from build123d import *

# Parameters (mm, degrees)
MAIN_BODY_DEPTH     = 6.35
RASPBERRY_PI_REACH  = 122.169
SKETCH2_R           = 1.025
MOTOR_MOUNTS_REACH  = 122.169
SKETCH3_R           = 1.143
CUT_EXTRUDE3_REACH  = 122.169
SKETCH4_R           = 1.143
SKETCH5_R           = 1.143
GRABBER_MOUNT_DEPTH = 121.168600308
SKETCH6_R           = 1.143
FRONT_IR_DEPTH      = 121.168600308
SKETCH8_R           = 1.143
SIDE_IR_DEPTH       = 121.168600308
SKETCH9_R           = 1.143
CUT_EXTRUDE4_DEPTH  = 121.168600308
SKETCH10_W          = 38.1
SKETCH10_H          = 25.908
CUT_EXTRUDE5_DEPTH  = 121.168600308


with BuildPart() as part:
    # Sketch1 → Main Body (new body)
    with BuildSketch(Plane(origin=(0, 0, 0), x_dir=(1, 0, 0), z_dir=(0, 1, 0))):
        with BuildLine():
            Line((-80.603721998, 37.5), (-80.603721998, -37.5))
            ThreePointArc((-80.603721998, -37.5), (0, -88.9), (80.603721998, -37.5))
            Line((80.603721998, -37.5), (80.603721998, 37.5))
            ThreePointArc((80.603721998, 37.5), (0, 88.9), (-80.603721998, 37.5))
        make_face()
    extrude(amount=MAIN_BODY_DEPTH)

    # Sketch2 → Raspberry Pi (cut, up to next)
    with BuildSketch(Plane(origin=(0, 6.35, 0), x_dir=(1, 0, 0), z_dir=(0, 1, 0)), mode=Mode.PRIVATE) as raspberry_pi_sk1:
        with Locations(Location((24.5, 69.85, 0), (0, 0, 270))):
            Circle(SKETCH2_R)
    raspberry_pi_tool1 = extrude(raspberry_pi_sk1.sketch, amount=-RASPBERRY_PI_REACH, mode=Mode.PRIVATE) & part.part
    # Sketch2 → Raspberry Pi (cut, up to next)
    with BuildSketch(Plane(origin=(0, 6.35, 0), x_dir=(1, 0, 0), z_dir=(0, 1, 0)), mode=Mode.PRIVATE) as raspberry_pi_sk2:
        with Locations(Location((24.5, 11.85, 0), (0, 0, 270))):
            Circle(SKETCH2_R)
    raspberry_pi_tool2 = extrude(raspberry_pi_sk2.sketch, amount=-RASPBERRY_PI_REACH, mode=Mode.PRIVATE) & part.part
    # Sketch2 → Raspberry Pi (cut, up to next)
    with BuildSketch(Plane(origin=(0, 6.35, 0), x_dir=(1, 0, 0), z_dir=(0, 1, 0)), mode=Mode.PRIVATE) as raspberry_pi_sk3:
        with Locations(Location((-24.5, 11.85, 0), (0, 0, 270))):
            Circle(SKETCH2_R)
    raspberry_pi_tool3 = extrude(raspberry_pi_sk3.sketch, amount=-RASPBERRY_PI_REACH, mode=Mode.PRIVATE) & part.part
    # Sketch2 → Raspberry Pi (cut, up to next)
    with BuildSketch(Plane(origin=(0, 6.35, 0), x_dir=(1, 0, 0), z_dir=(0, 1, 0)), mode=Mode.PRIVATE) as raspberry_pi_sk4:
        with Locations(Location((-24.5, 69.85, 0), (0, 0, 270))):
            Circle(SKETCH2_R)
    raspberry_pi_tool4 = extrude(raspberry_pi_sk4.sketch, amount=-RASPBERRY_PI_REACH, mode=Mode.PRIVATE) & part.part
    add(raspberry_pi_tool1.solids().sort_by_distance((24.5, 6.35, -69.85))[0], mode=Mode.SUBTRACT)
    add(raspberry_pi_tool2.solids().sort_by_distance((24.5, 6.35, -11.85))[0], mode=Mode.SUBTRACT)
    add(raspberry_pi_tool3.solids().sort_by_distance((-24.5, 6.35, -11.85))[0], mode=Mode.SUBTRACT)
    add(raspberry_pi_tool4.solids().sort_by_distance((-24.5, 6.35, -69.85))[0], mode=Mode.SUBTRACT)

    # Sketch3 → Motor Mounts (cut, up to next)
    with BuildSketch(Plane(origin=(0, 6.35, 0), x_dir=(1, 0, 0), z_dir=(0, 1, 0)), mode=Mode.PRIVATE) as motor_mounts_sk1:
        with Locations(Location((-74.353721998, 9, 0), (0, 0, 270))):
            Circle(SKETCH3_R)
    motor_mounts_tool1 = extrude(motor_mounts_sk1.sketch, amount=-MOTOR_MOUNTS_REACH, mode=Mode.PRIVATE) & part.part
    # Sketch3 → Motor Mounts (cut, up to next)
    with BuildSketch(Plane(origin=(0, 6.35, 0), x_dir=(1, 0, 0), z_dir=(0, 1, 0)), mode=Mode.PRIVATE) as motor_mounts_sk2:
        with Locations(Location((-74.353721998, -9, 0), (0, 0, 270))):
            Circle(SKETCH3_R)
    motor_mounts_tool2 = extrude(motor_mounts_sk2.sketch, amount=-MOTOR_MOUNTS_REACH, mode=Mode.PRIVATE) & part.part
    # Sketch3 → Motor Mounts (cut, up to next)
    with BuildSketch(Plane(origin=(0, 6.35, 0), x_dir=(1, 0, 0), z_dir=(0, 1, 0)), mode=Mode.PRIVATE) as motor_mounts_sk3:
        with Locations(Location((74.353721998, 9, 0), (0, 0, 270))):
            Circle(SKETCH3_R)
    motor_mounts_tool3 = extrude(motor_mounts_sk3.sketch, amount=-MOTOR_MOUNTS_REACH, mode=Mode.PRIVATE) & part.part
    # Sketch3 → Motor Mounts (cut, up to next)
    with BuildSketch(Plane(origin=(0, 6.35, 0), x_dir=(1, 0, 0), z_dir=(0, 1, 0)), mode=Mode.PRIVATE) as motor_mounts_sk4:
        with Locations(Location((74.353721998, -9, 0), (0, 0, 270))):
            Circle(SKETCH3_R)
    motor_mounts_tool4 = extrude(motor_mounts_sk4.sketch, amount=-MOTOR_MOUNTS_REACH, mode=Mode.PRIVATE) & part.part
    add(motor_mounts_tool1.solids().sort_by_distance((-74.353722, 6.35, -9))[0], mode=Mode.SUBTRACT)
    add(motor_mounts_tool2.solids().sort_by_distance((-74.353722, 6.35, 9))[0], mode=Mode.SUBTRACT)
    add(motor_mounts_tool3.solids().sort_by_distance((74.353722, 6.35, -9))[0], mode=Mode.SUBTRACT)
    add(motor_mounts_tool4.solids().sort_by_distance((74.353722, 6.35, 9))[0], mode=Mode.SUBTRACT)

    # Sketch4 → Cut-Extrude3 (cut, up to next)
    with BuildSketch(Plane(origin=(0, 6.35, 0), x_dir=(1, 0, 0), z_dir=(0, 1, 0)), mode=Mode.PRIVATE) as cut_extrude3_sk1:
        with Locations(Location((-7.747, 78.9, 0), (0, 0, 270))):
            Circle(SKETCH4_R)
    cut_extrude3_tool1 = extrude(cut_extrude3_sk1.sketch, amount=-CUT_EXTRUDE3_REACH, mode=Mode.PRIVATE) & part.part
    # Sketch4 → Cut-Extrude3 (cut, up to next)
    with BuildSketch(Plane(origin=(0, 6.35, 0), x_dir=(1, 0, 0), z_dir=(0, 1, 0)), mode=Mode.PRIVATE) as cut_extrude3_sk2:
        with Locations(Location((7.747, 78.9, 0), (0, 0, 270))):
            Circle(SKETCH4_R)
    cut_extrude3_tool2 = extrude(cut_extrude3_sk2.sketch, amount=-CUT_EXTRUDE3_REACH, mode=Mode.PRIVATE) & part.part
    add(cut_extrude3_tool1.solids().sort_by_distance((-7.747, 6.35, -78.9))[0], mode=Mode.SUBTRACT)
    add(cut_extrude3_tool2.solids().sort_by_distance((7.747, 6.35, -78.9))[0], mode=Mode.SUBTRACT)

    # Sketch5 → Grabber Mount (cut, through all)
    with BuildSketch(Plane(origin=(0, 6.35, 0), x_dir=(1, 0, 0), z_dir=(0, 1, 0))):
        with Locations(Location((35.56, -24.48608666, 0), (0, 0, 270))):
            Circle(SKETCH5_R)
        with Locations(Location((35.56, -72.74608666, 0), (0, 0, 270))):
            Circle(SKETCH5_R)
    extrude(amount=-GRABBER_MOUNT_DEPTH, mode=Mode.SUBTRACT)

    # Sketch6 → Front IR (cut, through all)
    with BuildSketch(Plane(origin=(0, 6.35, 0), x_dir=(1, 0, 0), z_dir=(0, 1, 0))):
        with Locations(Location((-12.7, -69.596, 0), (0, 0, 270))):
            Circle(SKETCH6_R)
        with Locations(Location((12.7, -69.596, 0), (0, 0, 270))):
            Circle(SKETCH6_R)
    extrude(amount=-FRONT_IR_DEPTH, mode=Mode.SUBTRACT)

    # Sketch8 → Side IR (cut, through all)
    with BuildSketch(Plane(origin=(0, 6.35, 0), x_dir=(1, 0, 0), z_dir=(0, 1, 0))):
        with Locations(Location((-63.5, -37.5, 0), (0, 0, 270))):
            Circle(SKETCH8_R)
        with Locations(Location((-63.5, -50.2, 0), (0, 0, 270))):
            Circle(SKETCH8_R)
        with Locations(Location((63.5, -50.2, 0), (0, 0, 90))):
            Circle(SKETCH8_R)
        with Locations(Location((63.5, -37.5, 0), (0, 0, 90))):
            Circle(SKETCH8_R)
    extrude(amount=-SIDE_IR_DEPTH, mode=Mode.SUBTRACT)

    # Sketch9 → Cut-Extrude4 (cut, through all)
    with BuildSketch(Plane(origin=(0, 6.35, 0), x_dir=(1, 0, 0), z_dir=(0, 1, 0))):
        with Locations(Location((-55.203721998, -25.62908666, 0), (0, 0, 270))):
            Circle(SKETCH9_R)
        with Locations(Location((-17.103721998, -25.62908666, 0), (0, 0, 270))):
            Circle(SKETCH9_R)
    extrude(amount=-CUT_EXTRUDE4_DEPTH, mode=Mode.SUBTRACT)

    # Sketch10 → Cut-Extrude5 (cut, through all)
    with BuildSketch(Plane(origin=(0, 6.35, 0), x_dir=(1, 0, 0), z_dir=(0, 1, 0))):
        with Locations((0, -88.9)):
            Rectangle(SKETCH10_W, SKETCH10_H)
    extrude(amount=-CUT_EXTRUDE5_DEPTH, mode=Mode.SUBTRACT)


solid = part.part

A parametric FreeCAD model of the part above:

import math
import FreeCAD as App
import Part
import Sketcher
from FreeCAD import Vector
Q = App.Units.Quantity

doc = App.newDocument("Part")
body = doc.addObject("PartDesign::Body", "Body")

sketch1 = doc.addObject("Sketcher::SketchObject", "Sketch")
body.addObject(sketch1)
sketch1.AttachmentSupport = (doc.XZ_Plane, [""])
sketch1.MapMode = "FlatFace"
sketch1.addGeometry([
    Part.LineSegment(Vector(-81, -38, 0), Vector(-81, 38, 0)),
    Part.ArcOfCircle(Part.Circle(Vector(0, 0, 0), Vector(0, 0, 1), 89), math.radians(25), math.radians(155)),
    Part.LineSegment(Vector(81, 38, 0), Vector(81, -38, 0)),
    Part.ArcOfCircle(Part.Circle(Vector(0, 0, 0), Vector(0, 0, 1), 89), math.radians(-155), math.radians(-25)),
], False)
sketch1.addConstraint([
    Sketcher.Constraint("Coincident", 0, 2, 1, 2),
    Sketcher.Constraint("Coincident", 1, 1, 2, 1),
    Sketcher.Constraint("Coincident", 2, 2, 3, 2),
    Sketcher.Constraint("Coincident", 3, 1, 0, 1),
    Sketcher.Constraint("Vertical", 0),
    Sketcher.Constraint("Vertical", 2),
    Sketcher.Constraint("Coincident", 1, 3, -1, 1),
    Sketcher.Constraint("Coincident", 3, 3, -1, 1),
    Sketcher.Constraint("Equal", 1, 3),
    Sketcher.Constraint("Horizontal", 0, 2, 1, 1),
    Sketcher.Constraint("Radius", 1, Q("3.5 in")),
    Sketcher.Constraint("DistanceY", 0, 1, 0, 2, 75.0),
])
pad1 = doc.addObject("PartDesign::Pad", "Pad")
body.addObject(pad1)
pad1.Profile = sketch1
pad1.Length = Q("0.25 in")
pad1.Reversed = True

sketch2 = doc.addObject("Sketcher::SketchObject", "Sketch001")
body.addObject(sketch2)
sketch2.AttachmentSupport = (doc.XZ_Plane, [""])
sketch2.MapMode = "FlatFace"
sketch2.AttachmentOffset = App.Placement(Vector(0, 0, -0.25 * 25.4), App.Rotation())
sketch2.addGeometry(Part.Circle(Vector(24.5, -69.8, 0), Vector(0, 0, 1), 1), False)
sketch2.addConstraint([
    Sketcher.Constraint("Diameter", 0, 2.05),
    Sketcher.Constraint("DistanceY", 0, 3, -1, 1, Q("2.75 in")),
    Sketcher.Constraint("DistanceX", -1, 1, 0, 3, 24.5),
])
pocket1 = doc.addObject("PartDesign::Pocket", "Pocket")
body.addObject(pocket1)
pocket1.Profile = sketch2
pocket1.Type = "UpToFirst"
pocket1.Reversed = True

sketch3 = doc.addObject("Sketcher::SketchObject", "Sketch002")
body.addObject(sketch3)
sketch3.AttachmentSupport = (doc.XZ_Plane, [""])
sketch3.MapMode = "FlatFace"
sketch3.AttachmentOffset = App.Placement(Vector(0, 0, -0.25 * 25.4), App.Rotation())
sketch3.addGeometry(Part.Circle(Vector(24.5, -11.8, 0), Vector(0, 0, 1), 1), False)
sketch3.addConstraint([
    Sketcher.Constraint("Diameter", 0, 2.05),
    Sketcher.Constraint("DistanceX", -1, 1, 0, 3, 24.5),
    Sketcher.Constraint("DistanceY", 0, 3, -1, 1, 11.85),
])
pocket2 = doc.addObject("PartDesign::Pocket", "Pocket001")
body.addObject(pocket2)
pocket2.Profile = sketch3
pocket2.Type = "UpToFirst"
pocket2.Reversed = True

sketch4 = doc.addObject("Sketcher::SketchObject", "Sketch003")
body.addObject(sketch4)
sketch4.AttachmentSupport = (doc.XZ_Plane, [""])
sketch4.MapMode = "FlatFace"
sketch4.AttachmentOffset = App.Placement(Vector(0, 0, -0.25 * 25.4), App.Rotation())
sketch4.addGeometry(Part.Circle(Vector(-24.5, -11.8, 0), Vector(0, 0, 1), 1), False)
sketch4.addConstraint([
    Sketcher.Constraint("Diameter", 0, 2.05),
    Sketcher.Constraint("DistanceX", 0, 3, -1, 1, 24.5),
    Sketcher.Constraint("DistanceY", 0, 3, -1, 1, 11.85),
])
pocket3 = doc.addObject("PartDesign::Pocket", "Pocket002")
body.addObject(pocket3)
pocket3.Profile = sketch4
pocket3.Type = "UpToFirst"
pocket3.Reversed = True

sketch5 = doc.addObject("Sketcher::SketchObject", "Sketch004")
body.addObject(sketch5)
sketch5.AttachmentSupport = (doc.XZ_Plane, [""])
sketch5.MapMode = "FlatFace"
sketch5.AttachmentOffset = App.Placement(Vector(0, 0, -0.25 * 25.4), App.Rotation())
sketch5.addGeometry(Part.Circle(Vector(-24.5, -69.8, 0), Vector(0, 0, 1), 1), False)
sketch5.addConstraint([
    Sketcher.Constraint("Diameter", 0, 2.05),
    Sketcher.Constraint("DistanceY", 0, 3, -1, 1, Q("2.75 in")),
    Sketcher.Constraint("DistanceX", 0, 3, -1, 1, 24.5),
])
pocket4 = doc.addObject("PartDesign::Pocket", "Pocket003")
body.addObject(pocket4)
pocket4.Profile = sketch5
pocket4.Type = "UpToFirst"
pocket4.Reversed = True

sketch6 = doc.addObject("Sketcher::SketchObject", "Sketch005")
body.addObject(sketch6)
sketch6.AttachmentSupport = (doc.XZ_Plane, [""])
sketch6.MapMode = "FlatFace"
sketch6.AttachmentOffset = App.Placement(Vector(0, 0, -0.25 * 25.4), App.Rotation())
sketch6.addGeometry(Part.Circle(Vector(-74.4, -9, 0), Vector(0, 0, 1), 1.1), False)
sketch6.addConstraint([
    Sketcher.Constraint("Diameter", 0, Q("0.09 in")),
    Sketcher.Constraint("DistanceY", 0, 3, -1, 1, 9.0),
    Sketcher.Constraint("DistanceX", 0, 3, -1, 1, 74.353722),
])
pocket5 = doc.addObject("PartDesign::Pocket", "Pocket004")
body.addObject(pocket5)
pocket5.Profile = sketch6
pocket5.Type = "UpToFirst"
pocket5.Reversed = True

sketch7 = doc.addObject("Sketcher::SketchObject", "Sketch006")
body.addObject(sketch7)
sketch7.AttachmentSupport = (doc.XZ_Plane, [""])
sketch7.MapMode = "FlatFace"
sketch7.AttachmentOffset = App.Placement(Vector(0, 0, -0.25 * 25.4), App.Rotation())
sketch7.addGeometry(Part.Circle(Vector(-74.4, 9, 0), Vector(0, 0, 1), 1.1), False)
sketch7.addConstraint([
    Sketcher.Constraint("Diameter", 0, Q("0.09 in")),
    Sketcher.Constraint("DistanceY", -1, 1, 0, 3, 9.0),
    Sketcher.Constraint("DistanceX", 0, 3, -1, 1, 74.353722),
])
pocket6 = doc.addObject("PartDesign::Pocket", "Pocket005")
body.addObject(pocket6)
pocket6.Profile = sketch7
pocket6.Type = "UpToFirst"
pocket6.Reversed = True

sketch8 = doc.addObject("Sketcher::SketchObject", "Sketch007")
body.addObject(sketch8)
sketch8.AttachmentSupport = (doc.XZ_Plane, [""])
sketch8.MapMode = "FlatFace"
sketch8.AttachmentOffset = App.Placement(Vector(0, 0, -0.25 * 25.4), App.Rotation())
sketch8.addGeometry(Part.Circle(Vector(74.4, -9, 0), Vector(0, 0, 1), 1.1), False)
sketch8.addConstraint([
    Sketcher.Constraint("Diameter", 0, Q("0.09 in")),
    Sketcher.Constraint("DistanceY", 0, 3, -1, 1, 9.0),
    Sketcher.Constraint("DistanceX", -1, 1, 0, 3, 74.353722),
])
pocket7 = doc.addObject("PartDesign::Pocket", "Pocket006")
body.addObject(pocket7)
pocket7.Profile = sketch8
pocket7.Type = "UpToFirst"
pocket7.Reversed = True

sketch9 = doc.addObject("Sketcher::SketchObject", "Sketch008")
body.addObject(sketch9)
sketch9.AttachmentSupport = (doc.XZ_Plane, [""])
sketch9.MapMode = "FlatFace"
sketch9.AttachmentOffset = App.Placement(Vector(0, 0, -0.25 * 25.4), App.Rotation())
sketch9.addGeometry(Part.Circle(Vector(74.4, 9, 0), Vector(0, 0, 1), 1.1), False)
sketch9.addConstraint([
    Sketcher.Constraint("Diameter", 0, Q("0.09 in")),
    Sketcher.Constraint("DistanceY", -1, 1, 0, 3, 9.0),
    Sketcher.Constraint("DistanceX", -1, 1, 0, 3, 74.353722),
])
pocket8 = doc.addObject("PartDesign::Pocket", "Pocket007")
body.addObject(pocket8)
pocket8.Profile = sketch9
pocket8.Type = "UpToFirst"
pocket8.Reversed = True

sketch10 = doc.addObject("Sketcher::SketchObject", "Sketch009")
body.addObject(sketch10)
sketch10.AttachmentSupport = (doc.XZ_Plane, [""])
sketch10.MapMode = "FlatFace"
sketch10.AttachmentOffset = App.Placement(Vector(0, 0, -0.25 * 25.4), App.Rotation())
sketch10.addGeometry(Part.Circle(Vector(-7.7, -78.9, 0), Vector(0, 0, 1), 1.1), False)
sketch10.addConstraint([
    Sketcher.Constraint("Diameter", 0, Q("0.09 in")),
    Sketcher.Constraint("DistanceX", 0, 3, -1, 1, Q("0.305 in")),
    Sketcher.Constraint("DistanceY", 0, 3, -1, 1, 78.9),
])
pocket9 = doc.addObject("PartDesign::Pocket", "Pocket008")
body.addObject(pocket9)
pocket9.Profile = sketch10
pocket9.Type = "UpToFirst"
pocket9.Reversed = True

sketch11 = doc.addObject("Sketcher::SketchObject", "Sketch010")
body.addObject(sketch11)
sketch11.AttachmentSupport = (doc.XZ_Plane, [""])
sketch11.MapMode = "FlatFace"
sketch11.AttachmentOffset = App.Placement(Vector(0, 0, -0.25 * 25.4), App.Rotation())
sketch11.addGeometry(Part.Circle(Vector(7.7, -78.9, 0), Vector(0, 0, 1), 1.1), False)
sketch11.addConstraint([
    Sketcher.Constraint("Diameter", 0, Q("0.09 in")),
    Sketcher.Constraint("DistanceX", -1, 1, 0, 3, Q("0.305 in")),
    Sketcher.Constraint("DistanceY", 0, 3, -1, 1, 78.9),
])
pocket10 = doc.addObject("PartDesign::Pocket", "Pocket009")
body.addObject(pocket10)
pocket10.Profile = sketch11
pocket10.Type = "UpToFirst"
pocket10.Reversed = True

sketch12 = doc.addObject("Sketcher::SketchObject", "Sketch011")
body.addObject(sketch12)
sketch12.AttachmentSupport = (doc.XZ_Plane, [""])
sketch12.MapMode = "FlatFace"
sketch12.AttachmentOffset = App.Placement(Vector(0, 0, -0.25 * 25.4), App.Rotation())
sketch12.addGeometry([
    Part.Circle(Vector(35.6, 24.5, 0), Vector(0, 0, 1), 1.1),
    Part.Circle(Vector(35.6, 72.7, 0), Vector(0, 0, 1), 1.1),
], False)
sketch12.addConstraint([
    Sketcher.Constraint("Equal", 0, 1),
    Sketcher.Constraint("Vertical", 0, 3, 1, 3),
    Sketcher.Constraint("Diameter", 0, Q("0.09 in")),
    Sketcher.Constraint("DistanceX", -1, 1, 0, 3, Q("1.4 in")),
    Sketcher.Constraint("DistanceY", 0, 3, 1, 3, Q("1.9 in")),
    Sketcher.Constraint("DistanceY", -1, 1, 0, 3, 24.486087),
])
pocket11 = doc.addObject("PartDesign::Pocket", "Pocket010")
body.addObject(pocket11)
pocket11.Profile = sketch12
pocket11.Type = "ThroughAll"
pocket11.Reversed = True

sketch13 = doc.addObject("Sketcher::SketchObject", "Sketch012")
body.addObject(sketch13)
sketch13.AttachmentSupport = (doc.XZ_Plane, [""])
sketch13.MapMode = "FlatFace"
sketch13.AttachmentOffset = App.Placement(Vector(0, 0, -0.25 * 25.4), App.Rotation())
sketch13.addGeometry([
    Part.Circle(Vector(-12.7, 69.6, 0), Vector(0, 0, 1), 1.1),
    Part.Circle(Vector(12.7, 69.6, 0), Vector(0, 0, 1), 1.1),
], False)
sketch13.addConstraint([
    Sketcher.Constraint("Equal", 0, 1),
    Sketcher.Constraint("Symmetric", 0, 3, 1, 3, -2),
    Sketcher.Constraint("Diameter", 0, Q("0.09 in")),
    Sketcher.Constraint("DistanceX", 0, 3, 1, 3, Q("1 in")),
    Sketcher.Constraint("DistanceY", -1, 1, 0, 3, Q("2.74 in")),
])
pocket12 = doc.addObject("PartDesign::Pocket", "Pocket011")
body.addObject(pocket12)
pocket12.Profile = sketch13
pocket12.Type = "ThroughAll"
pocket12.Reversed = True

sketch14 = doc.addObject("Sketcher::SketchObject", "Sketch013")
body.addObject(sketch14)
sketch14.AttachmentSupport = (doc.XZ_Plane, [""])
sketch14.MapMode = "FlatFace"
sketch14.AttachmentOffset = App.Placement(Vector(0, 0, -0.25 * 25.4), App.Rotation())
sketch14.addGeometry([
    Part.Circle(Vector(-63.5, 37.5, 0), Vector(0, 0, 1), 1.1),
    Part.Circle(Vector(-63.5, 50.2, 0), Vector(0, 0, 1), 1.1),
    Part.Circle(Vector(63.5, 50.2, 0), Vector(0, 0, 1), 1.1),
    Part.Circle(Vector(63.5, 37.5, 0), Vector(0, 0, 1), 1.1),
], False)
sketch14.addConstraint([
    Sketcher.Constraint("Equal", 0, 1),
    Sketcher.Constraint("Equal", 1, 2),
    Sketcher.Constraint("Equal", 2, 3),
    Sketcher.Constraint("Symmetric", 1, 3, 2, 3, -2),
    Sketcher.Constraint("Symmetric", 0, 3, 3, 3, -2),
    Sketcher.Constraint("Vertical", 0, 3, 1, 3),
    Sketcher.Constraint("Diameter", 0, Q("0.09 in")),
    Sketcher.Constraint("DistanceX", 1, 3, 2, 3, Q("5 in")),
    Sketcher.Constraint("DistanceY", 0, 3, 1, 3, Q("0.5 in")),
    Sketcher.Constraint("DistanceY", -1, 1, 0, 3, 37.5),
])
pocket13 = doc.addObject("PartDesign::Pocket", "Pocket012")
body.addObject(pocket13)
pocket13.Profile = sketch14
pocket13.Type = "ThroughAll"
pocket13.Reversed = True

sketch15 = doc.addObject("Sketcher::SketchObject", "Sketch014")
body.addObject(sketch15)
sketch15.AttachmentSupport = (doc.XZ_Plane, [""])
sketch15.MapMode = "FlatFace"
sketch15.AttachmentOffset = App.Placement(Vector(0, 0, -0.25 * 25.4), App.Rotation())
sketch15.addGeometry([
    Part.Circle(Vector(-55.2, 25.6, 0), Vector(0, 0, 1), 1.1),
    Part.Circle(Vector(-17.1, 25.6, 0), Vector(0, 0, 1), 1.1),
], False)
sketch15.addConstraint([
    Sketcher.Constraint("Equal", 0, 1),
    Sketcher.Constraint("Horizontal", 0, 3, 1, 3),
    Sketcher.Constraint("Diameter", 0, Q("0.09 in")),
    Sketcher.Constraint("DistanceX", 0, 3, 1, 3, Q("1.5 in")),
    Sketcher.Constraint("DistanceX", 0, 3, -1, 1, 55.203722),
    Sketcher.Constraint("DistanceY", -1, 1, 0, 3, 25.629087),
])
pocket14 = doc.addObject("PartDesign::Pocket", "Pocket013")
body.addObject(pocket14)
pocket14.Profile = sketch15
pocket14.Type = "ThroughAll"
pocket14.Reversed = True

sketch16 = doc.addObject("Sketcher::SketchObject", "Sketch015")
body.addObject(sketch16)
sketch16.AttachmentSupport = (doc.XZ_Plane, [""])
sketch16.MapMode = "FlatFace"
sketch16.AttachmentOffset = App.Placement(Vector(0, 0, -0.25 * 25.4), App.Rotation())
sketch16.addGeometry([
    Part.LineSegment(Vector(-19, 76, 0), Vector(-19, 102, 0)),
    Part.LineSegment(Vector(-19, 102, 0), Vector(19, 102, 0)),
    Part.LineSegment(Vector(19, 102, 0), Vector(19, 76, 0)),
    Part.LineSegment(Vector(19, 76, 0), Vector(-19, 76, 0)),
], False)
sketch16.addConstraint([
    Sketcher.Constraint("Coincident", 0, 2, 1, 1),
    Sketcher.Constraint("Coincident", 1, 2, 2, 1),
    Sketcher.Constraint("Coincident", 2, 2, 3, 1),
    Sketcher.Constraint("Coincident", 3, 2, 0, 1),
    Sketcher.Constraint("Vertical", 0),
    Sketcher.Constraint("Horizontal", 1),
    Sketcher.Constraint("Vertical", 2),
    Sketcher.Constraint("Horizontal", 3),
    Sketcher.Constraint("DistanceX", 1, 1, 1, 2, Q("1.5 in")),
    Sketcher.Constraint("DistanceY", 0, 1, 0, 2, Q("1.02 in")),
    Sketcher.Constraint("DistanceX", 0, 2, -1, 1, Q("0.75 in")),
    Sketcher.Constraint("DistanceY", -1, 1, 0, 2, Q("4.01 in")),
])
pocket15 = doc.addObject("PartDesign::Pocket", "Pocket014")
body.addObject(pocket15)
pocket15.Profile = sketch16
pocket15.Type = "ThroughAll"
pocket15.Reversed = True

doc.recompute()
